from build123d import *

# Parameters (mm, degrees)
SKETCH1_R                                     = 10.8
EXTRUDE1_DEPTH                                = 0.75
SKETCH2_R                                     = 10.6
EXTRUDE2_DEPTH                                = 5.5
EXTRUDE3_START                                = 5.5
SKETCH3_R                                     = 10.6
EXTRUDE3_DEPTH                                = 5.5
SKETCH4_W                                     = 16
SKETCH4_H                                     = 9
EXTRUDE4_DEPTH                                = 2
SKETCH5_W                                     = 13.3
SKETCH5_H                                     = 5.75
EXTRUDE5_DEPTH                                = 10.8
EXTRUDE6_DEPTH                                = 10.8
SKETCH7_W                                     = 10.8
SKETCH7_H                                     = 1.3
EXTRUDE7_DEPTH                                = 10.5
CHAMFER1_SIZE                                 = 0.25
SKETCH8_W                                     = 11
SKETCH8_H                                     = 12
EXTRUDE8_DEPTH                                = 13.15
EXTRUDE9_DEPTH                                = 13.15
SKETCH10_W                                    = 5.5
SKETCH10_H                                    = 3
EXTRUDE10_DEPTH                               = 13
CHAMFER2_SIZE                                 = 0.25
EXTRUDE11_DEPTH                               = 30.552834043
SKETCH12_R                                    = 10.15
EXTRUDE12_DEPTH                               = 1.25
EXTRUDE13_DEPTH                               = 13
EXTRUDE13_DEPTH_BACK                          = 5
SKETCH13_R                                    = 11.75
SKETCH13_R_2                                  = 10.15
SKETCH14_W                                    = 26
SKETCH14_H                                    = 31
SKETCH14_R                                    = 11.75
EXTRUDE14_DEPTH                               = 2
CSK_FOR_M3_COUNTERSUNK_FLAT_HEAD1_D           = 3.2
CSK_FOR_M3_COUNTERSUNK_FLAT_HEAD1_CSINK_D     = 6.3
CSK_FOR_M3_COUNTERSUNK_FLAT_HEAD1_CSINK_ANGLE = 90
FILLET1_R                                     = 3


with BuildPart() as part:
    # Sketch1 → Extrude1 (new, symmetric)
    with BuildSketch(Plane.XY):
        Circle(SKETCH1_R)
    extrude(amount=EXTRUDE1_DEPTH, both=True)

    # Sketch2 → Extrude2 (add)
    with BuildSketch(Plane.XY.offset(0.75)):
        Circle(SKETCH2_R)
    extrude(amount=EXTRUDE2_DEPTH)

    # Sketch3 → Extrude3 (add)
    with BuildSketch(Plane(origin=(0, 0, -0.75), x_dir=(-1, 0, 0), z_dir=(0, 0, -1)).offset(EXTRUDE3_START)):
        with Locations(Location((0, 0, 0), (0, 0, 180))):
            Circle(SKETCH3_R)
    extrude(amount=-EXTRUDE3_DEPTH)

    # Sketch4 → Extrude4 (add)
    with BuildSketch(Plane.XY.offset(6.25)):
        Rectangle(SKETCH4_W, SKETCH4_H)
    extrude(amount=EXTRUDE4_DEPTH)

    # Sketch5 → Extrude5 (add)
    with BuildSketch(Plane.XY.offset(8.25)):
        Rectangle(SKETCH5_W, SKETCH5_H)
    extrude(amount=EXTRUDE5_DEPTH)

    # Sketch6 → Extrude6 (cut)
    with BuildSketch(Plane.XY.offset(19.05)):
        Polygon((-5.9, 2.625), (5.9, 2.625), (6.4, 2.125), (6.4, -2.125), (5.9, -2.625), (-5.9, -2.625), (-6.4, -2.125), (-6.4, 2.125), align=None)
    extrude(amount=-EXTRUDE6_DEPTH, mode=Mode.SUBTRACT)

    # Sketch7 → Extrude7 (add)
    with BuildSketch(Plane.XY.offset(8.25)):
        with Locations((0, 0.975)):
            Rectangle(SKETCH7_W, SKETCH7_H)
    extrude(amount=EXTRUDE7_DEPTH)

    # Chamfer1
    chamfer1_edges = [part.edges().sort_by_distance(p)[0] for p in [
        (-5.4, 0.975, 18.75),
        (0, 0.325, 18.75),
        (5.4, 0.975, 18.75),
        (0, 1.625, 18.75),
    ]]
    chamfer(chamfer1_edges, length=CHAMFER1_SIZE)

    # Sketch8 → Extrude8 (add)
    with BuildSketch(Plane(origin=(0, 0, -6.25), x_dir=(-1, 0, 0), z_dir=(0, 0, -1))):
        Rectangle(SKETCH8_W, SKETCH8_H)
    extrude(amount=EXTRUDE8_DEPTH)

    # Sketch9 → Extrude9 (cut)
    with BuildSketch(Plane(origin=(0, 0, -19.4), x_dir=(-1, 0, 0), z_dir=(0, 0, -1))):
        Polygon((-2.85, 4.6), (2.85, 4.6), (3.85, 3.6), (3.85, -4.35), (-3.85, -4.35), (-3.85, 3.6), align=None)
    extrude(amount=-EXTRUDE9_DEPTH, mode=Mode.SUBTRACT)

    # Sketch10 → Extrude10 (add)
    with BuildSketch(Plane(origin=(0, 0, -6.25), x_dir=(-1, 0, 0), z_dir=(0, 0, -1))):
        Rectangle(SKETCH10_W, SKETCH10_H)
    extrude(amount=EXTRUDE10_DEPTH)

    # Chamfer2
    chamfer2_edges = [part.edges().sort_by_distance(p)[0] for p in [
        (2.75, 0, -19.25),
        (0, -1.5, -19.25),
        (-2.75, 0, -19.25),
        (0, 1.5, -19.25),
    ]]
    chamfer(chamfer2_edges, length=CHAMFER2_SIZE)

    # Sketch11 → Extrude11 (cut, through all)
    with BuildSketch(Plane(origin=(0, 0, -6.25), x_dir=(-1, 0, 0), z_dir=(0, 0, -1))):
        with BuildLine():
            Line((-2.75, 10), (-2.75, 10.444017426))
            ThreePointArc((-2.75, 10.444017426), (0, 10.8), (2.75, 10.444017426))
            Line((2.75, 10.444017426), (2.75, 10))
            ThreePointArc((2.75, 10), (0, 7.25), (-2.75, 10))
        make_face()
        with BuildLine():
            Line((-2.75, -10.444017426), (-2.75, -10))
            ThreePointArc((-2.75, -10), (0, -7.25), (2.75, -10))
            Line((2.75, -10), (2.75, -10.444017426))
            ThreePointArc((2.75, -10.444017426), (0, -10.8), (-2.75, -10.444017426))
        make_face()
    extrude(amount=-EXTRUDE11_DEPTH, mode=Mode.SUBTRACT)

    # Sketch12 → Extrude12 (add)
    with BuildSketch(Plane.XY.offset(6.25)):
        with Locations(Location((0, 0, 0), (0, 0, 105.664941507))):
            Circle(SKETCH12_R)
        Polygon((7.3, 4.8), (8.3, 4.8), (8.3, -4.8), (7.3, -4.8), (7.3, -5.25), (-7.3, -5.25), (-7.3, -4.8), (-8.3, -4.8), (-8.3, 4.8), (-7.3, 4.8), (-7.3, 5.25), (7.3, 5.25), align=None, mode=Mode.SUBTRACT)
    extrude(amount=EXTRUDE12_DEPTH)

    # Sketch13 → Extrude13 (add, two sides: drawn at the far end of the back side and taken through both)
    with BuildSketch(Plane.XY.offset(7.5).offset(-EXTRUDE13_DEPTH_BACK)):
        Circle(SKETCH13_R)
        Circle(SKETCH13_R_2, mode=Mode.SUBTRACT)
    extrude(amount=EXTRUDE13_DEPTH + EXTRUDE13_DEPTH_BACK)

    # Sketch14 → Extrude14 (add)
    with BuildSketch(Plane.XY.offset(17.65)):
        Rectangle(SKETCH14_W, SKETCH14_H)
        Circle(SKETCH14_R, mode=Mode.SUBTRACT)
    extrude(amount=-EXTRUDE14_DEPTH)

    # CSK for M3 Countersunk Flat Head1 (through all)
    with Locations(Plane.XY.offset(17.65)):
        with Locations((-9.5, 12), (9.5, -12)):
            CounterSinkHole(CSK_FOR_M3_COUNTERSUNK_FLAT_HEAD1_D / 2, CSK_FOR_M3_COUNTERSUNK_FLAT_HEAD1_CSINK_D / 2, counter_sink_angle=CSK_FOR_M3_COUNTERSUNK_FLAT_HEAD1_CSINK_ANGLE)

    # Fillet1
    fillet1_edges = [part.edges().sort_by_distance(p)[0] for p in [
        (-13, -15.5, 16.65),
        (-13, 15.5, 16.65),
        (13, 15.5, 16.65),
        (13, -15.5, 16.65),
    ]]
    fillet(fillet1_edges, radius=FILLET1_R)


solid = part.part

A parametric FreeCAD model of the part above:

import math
import FreeCAD as App
import Part
import Sketcher
from FreeCAD import Vector
Q = App.Units.Quantity


def edges_at(feature, points):
    """Names of the edges that pass closest to the given points."""
    edges = feature.Shape.Edges
    near = lambda p: min(range(len(edges)), key=lambda i: edges[i].distToShape(Part.Vertex(*p))[0])
    return sorted({f"Edge{near(p) + 1}" for p in points})


def add_polygon(sketch, points):
    """Adds a closed chain of lines whose ends are joined by coincident constraints."""
    first, n = sketch.GeometryCount, len(points)
    for a, b in zip(points, points[1:] + points[:1]):
        sketch.addGeometry(Part.LineSegment(App.Vector(*a, 0), App.Vector(*b, 0)), False)
    for i in range(n):
        sketch.addConstraint(Sketcher.Constraint("Coincident", first + i, 2, first + (i + 1) % n, 1))

doc = App.newDocument("Part")
body = doc.addObject("PartDesign::Body", "Body")

# Sketch on XY plane
sketch1 = body.newObject("Sketcher::SketchObject", "Sketch")
sketch1.AttachmentSupport = (doc.getObject("XY_Plane"), [""])
sketch1.MapMode = "FlatFace"
sketch1.addGeometry(Part.Circle(Vector(0, 0, 0), Vector(0, 0, 1), 11), False)
sketch1.addConstraint([
    Sketcher.Constraint("Coincident", 0, 3, -1, 1),
    Sketcher.Constraint("Diameter", 0, Q("21.6 mm")),
])
pad1 = body.newObject("PartDesign::Pad", "Pad")
pad1.Profile = sketch1
pad1.Length = 1.5
pad1.Midplane = True

# Sketch on XY plane
sketch2 = body.newObject("Sketcher::SketchObject", "Sketch001")
sketch2.AttachmentSupport = (doc.getObject("XY_Plane"), [""])
sketch2.MapMode = "FlatFace"
sketch2.AttachmentOffset = App.Placement(Vector(0, 0, 0.75), App.Rotation())
sketch2.addGeometry(Part.Circle(Vector(0, 0, 0), Vector(0, 0, 1), 11), False)
sketch2.addConstraint([
    Sketcher.Constraint("Coincident", 0, 3, -1, 1),
    Sketcher.Constraint("Diameter", 0, Q("21.2 mm")),
])
pad2 = body.newObject("PartDesign::Pad", "Pad001")
pad2.Profile = sketch2
pad2.Length = 5.5

# Sketch on XY plane
sketch3 = body.newObject("Sketcher::SketchObject", "Sketch002")
sketch3.AttachmentSupport = (doc.getObject("XY_Plane"), [""])
sketch3.MapMode = "FlatFace"
sketch3.AttachmentOffset = App.Placement(Vector(0, 0, -6.25), App.Rotation())
sketch3.addGeometry(Part.Circle(Vector(0, 0, 0), Vector(0, 0, 1), 11), False)
sketch3.addConstraint([
    Sketcher.Constraint("Coincident", 0, 3, -1, 1),
    Sketcher.Constraint("Diameter", 0, Q("21.2 mm")),
])
pad3 = body.newObject("PartDesign::Pad", "Pad002")
pad3.Profile = sketch3
pad3.Length = 5.5

# Sketch on XY plane
sketch4 = body.newObject("Sketcher::SketchObject", "Sketch003")
sketch4.AttachmentSupport = (doc.getObject("XY_Plane"), [""])
sketch4.MapMode = "FlatFace"
sketch4.AttachmentOffset = App.Placement(Vector(0, 0, 6.25), App.Rotation())
add_polygon(sketch4, [(-8, 4), (-8, -4), (8, -4), (8, 4)])  # lines 0-3
sketch4.addConstraint([
    Sketcher.Constraint("Vertical", 0),
    Sketcher.Constraint("Horizontal", 1),
    Sketcher.Constraint("Vertical", 2),
    Sketcher.Constraint("Horizontal", 3),
    Sketcher.Constraint("Symmetric", 0, 2, 2, 2, -1, 1),
    Sketcher.Constraint("DistanceX", 1, 1, 1, 2, Q("16 mm")),
    Sketcher.Constraint("DistanceY", 0, 2, 0, 1, Q("9 mm")),
])
pad4 = body.newObject("PartDesign::Pad", "Pad003")
pad4.Profile = sketch4
pad4.Length = 2

# Sketch on XY plane
sketch5 = body.newObject("Sketcher::SketchObject", "Sketch004")
sketch5.AttachmentSupport = (doc.getObject("XY_Plane"), [""])
sketch5.MapMode = "FlatFace"
sketch5.AttachmentOffset = App.Placement(Vector(0, 0, 8.25), App.Rotation())
add_polygon(sketch5, [(-7, 3), (-7, -3), (7, -3), (7, 3)])  # lines 0-3
sketch5.addConstraint([
    Sketcher.Constraint("Vertical", 0),
    Sketcher.Constraint("Horizontal", 1),
    Sketcher.Constraint("Vertical", 2),
    Sketcher.Constraint("Horizontal", 3),
    Sketcher.Constraint("Symmetric", 0, 2, 2, 2, -1, 1),
    Sketcher.Constraint("DistanceX", 1, 1, 1, 2, Q("13.3 mm")),
    Sketcher.Constraint("DistanceY", 0, 2, 0, 1, Q("5.75 mm")),
])
pad5 = body.newObject("PartDesign::Pad", "Pad004")
pad5.Profile = sketch5
pad5.Length = 10.8

# Sketch on XY plane
sketch6 = body.newObject("Sketcher::SketchObject", "Sketch005")
sketch6.AttachmentSupport = (doc.getObject("XY_Plane"), [""])
sketch6.MapMode = "FlatFace"
sketch6.AttachmentOffset = App.Placement(Vector(0, 0, 19.05), App.Rotation())
add_polygon(sketch6, [(5.9, 2.6), (-5.9, 2.6), (-6.4, 2.1), (-6.4, -2.1), (-5.9, -2.6), (5.9, -2.6), (6.4, -2.1), (6.4, 2.1)])  # lines 0-7
sketch6.addConstraint([
    Sketcher.Constraint("Horizontal", 0),
    Sketcher.Constraint("Vertical", 2),
    Sketcher.Constraint("Horizontal", 4),
    Sketcher.Constraint("Vertical", 6),
    Sketcher.Constraint("Symmetric", 0, 2, 4, 2, -1, 1),
    Sketcher.Constraint("Symmetric", 1, 2, 5, 2, -1, 1),
    Sketcher.Constraint("Perpendicular", 1, 3),
    Sketcher.Constraint("Perpendicular", 5, 7),
    Sketcher.Constraint("Horizontal", 2, 2, 5, 2),
    Sketcher.Constraint("Horizontal", 1, 2, 6, 2),
    Sketcher.Constraint("Vertical", 0, 2, 3, 2),
    Sketcher.Constraint("DistanceX", 0, 2, 0, 1, Q("11.8 mm")),
    Sketcher.Constraint("DistanceY", 2, 2, 2, 1, Q("4.25 mm")),
    Sketcher.Constraint("DistanceX", 1, 2, -1, 1, Q("6.4 mm")),
])
pocket1 = body.newObject("PartDesign::Pocket", "Pocket")
pocket1.Profile = sketch6
pocket1.Length = 10.8

# Sketch on XY plane
sketch7 = body.newObject("Sketcher::SketchObject", "Sketch006")
sketch7.AttachmentSupport = (doc.getObject("XY_Plane"), [""])
sketch7.MapMode = "FlatFace"
sketch7.AttachmentOffset = App.Placement(Vector(0, 0, 8.25), App.Rotation())
add_polygon(sketch7, [(-5.4, 1.6), (-5.4, 0.3), (5.4, 0.3), (5.4, 1.6)])  # lines 0-3
sketch7.addConstraint([
    Sketcher.Constraint("Vertical", 0),
    Sketcher.Constraint("Horizontal", 1),
    Sketcher.Constraint("Vertical", 2),
    Sketcher.Constraint("Horizontal", 3),
    Sketcher.Constraint("DistanceX", 1, 1, 1, 2, Q("10.8 mm")),
    Sketcher.Constraint("DistanceY", 0, 2, 0, 1, Q("1.3 mm")),
    Sketcher.Constraint("DistanceX", 0, 2, -1, 1, Q("5.4 mm")),
    Sketcher.Constraint("DistanceY", -1, 1, 0, 2, Q("0.325 mm")),
])
pad6 = body.newObject("PartDesign::Pad", "Pad005")
pad6.Profile = sketch7
pad6.Length = 10.5
doc.recompute()

chamfer = body.newObject("PartDesign::Chamfer", "Chamfer")
chamfer.Base = (pad6, edges_at(pad6, [
    (-5.4, 0.975, 18.75),
    (0, 0.325, 18.75),
    (5.4, 0.975, 18.75),
    (0, 1.625, 18.75),
]))
chamfer.Size = 0.25

# Sketch on XY plane
sketch8 = body.newObject("Sketcher::SketchObject", "Sketch007")
sketch8.AttachmentSupport = (doc.getObject("XY_Plane"), [""])
sketch8.MapMode = "FlatFace"
sketch8.AttachmentOffset = App.Placement(Vector(0, 0, -6.25), App.Rotation())
add_polygon(sketch8, [(6, 6), (6, -6), (-6, -6), (-6, 6)])  # lines 0-3
sketch8.addConstraint([
    Sketcher.Constraint("Vertical", 0),
    Sketcher.Constraint("Horizontal", 1),
    Sketcher.Constraint("Vertical", 2),
    Sketcher.Constraint("Horizontal", 3),
    Sketcher.Constraint("Symmetric", 0, 2, 2, 2, -1, 1),
    Sketcher.Constraint("DistanceX", 1, 2, 1, 1, Q("11 mm")),
    Sketcher.Constraint("DistanceY", 0, 2, 0, 1, Q("12 mm")),
])
pad7 = body.newObject("PartDesign::Pad", "Pad006")
pad7.Profile = sketch8
pad7.Length = 13.15
pad7.Reversed = True

# Sketch on XY plane
sketch9 = body.newObject("Sketcher::SketchObject", "Sketch008")
sketch9.AttachmentSupport = (doc.getObject("XY_Plane"), [""])
sketch9.MapMode = "FlatFace"
sketch9.AttachmentOffset = App.Placement(Vector(0, 0, -19.4), App.Rotation())
add_polygon(sketch9, [(-2.9, 4.6), (2.9, 4.6), (3.9, 3.6), (3.9, -4.3), (-3.9, -4.3), (-3.9, 3.6)])  # lines 0-5
sketch9.addConstraint([
    Sketcher.Constraint("Horizontal", 0),
    Sketcher.Constraint("Vertical", 2),
    Sketcher.Constraint("Horizontal", 3),
    Sketcher.Constraint("Vertical", 4),
    Sketcher.Constraint("Symmetric", 1, 2, 4, 2, -2),
    Sketcher.Constraint("Perpendicular", 1, 5),
    Sketcher.Constraint("Equal", 1, 5),
    Sketcher.Constraint("DistanceX", 0, 1, 0, 2, Q("5.7 mm")),
    Sketcher.Constraint("DistanceX", 3, 2, 3, 1, Q("7.7 mm")),
    Sketcher.Constraint("DistanceY", 2, 2, 2, 1, Q("7.95 mm")),
    Sketcher.Constraint("DistanceY", -1, 1, 0, 2, Q("4.6 mm")),
])
pocket2 = body.newObject("PartDesign::Pocket", "Pocket001")
pocket2.Profile = sketch9
pocket2.Length = 13.15
pocket2.Reversed = True

# Sketch on XY plane
sketch10 = body.newObject("Sketcher::SketchObject", "Sketch009")
sketch10.AttachmentSupport = (doc.getObject("XY_Plane"), [""])
sketch10.MapMode = "FlatFace"
sketch10.AttachmentOffset = App.Placement(Vector(0, 0, -6.25), App.Rotation())
add_polygon(sketch10, [(2.8, 1.5), (2.8, -1.5), (-2.8, -1.5), (-2.8, 1.5)])  # lines 0-3
sketch10.addConstraint([
    Sketcher.Constraint("Vertical", 0),
    Sketcher.Constraint("Horizontal", 1),
    Sketcher.Constraint("Vertical", 2),
    Sketcher.Constraint("Horizontal", 3),
    Sketcher.Constraint("Symmetric", 0, 2, 2, 2, -1, 1),
    Sketcher.Constraint("DistanceY", 0, 2, 0, 1, Q("3 mm")),
    Sketcher.Constraint("DistanceX", 1, 2, 1, 1, Q("5.5 mm")),
])
pad8 = body.newObject("PartDesign::Pad", "Pad007")
pad8.Profile = sketch10
pad8.Length = 13
pad8.Reversed = True
doc.recompute()

chamfer2 = body.newObject("PartDesign::Chamfer", "Chamfer001")
chamfer2.Base = (pad8, edges_at(pad8, [
    (2.75, 0, -19.25),
    (0, -1.5, -19.25),
    (-2.75, 0, -19.25),
    (0, 1.5, -19.25),
]))
chamfer2.Size = 0.25

# Sketch on XY plane
sketch11 = body.newObject("Sketcher::SketchObject", "Sketch010")
sketch11.AttachmentSupport = (doc.getObject("XY_Plane"), [""])
sketch11.MapMode = "FlatFace"
sketch11.AttachmentOffset = App.Placement(Vector(0, 0, -6.25), App.Rotation())
sketch11.addGeometry([
    Part.LineSegment(Vector(2.75, 10.44, 0), Vector(2.75, 10, 0)),  # 0
    Part.ArcOfCircle(Part.Circle(Vector(0, 10, 0), Vector(0, 0, 1), 2.75), math.radians(180), math.radians(360)),  # 1
    Part.LineSegment(Vector(-2.75, 10, 0), Vector(-2.75, 10.44, 0)),  # 2
    Part.ArcOfCircle(Part.Circle(Vector(0, 0, 0), Vector(0, 0, 1), 10.8), math.radians(75), math.radians(105)),  # 3
    Part.LineSegment(Vector(2.75, -10, 0), Vector(2.75, -10.44, 0)),  # 4
    Part.ArcOfCircle(Part.Circle(Vector(0, 0, 0), Vector(0, 0, 1), 10.8), math.radians(-105), math.radians(-75)),  # 5
    Part.LineSegment(Vector(-2.75, -10.44, 0), Vector(-2.75, -10, 0)),  # 6
    Part.ArcOfCircle(Part.Circle(Vector(0, -10, 0), Vector(0, 0, 1), 2.75), math.radians(0), math.radians(180)),  # 7
], False)
sketch11.addConstraint([
    Sketcher.Constraint("Tangent", 0, 2, 1, 2),
    Sketcher.Constraint("Tangent", 1, 1, 2, 1),
    Sketcher.Constraint("Coincident", 2, 2, 3, 2),
    Sketcher.Constraint("Coincident", 3, 1, 0, 1),
    Sketcher.Constraint("Coincident", 4, 2, 5, 2),
    Sketcher.Constraint("Coincident", 5, 1, 6, 1),
    Sketcher.Constraint("Tangent", 6, 2, 7, 2),
    Sketcher.Constraint("Tangent", 7, 1, 4, 1),
    Sketcher.Constraint("Vertical", 0),
    Sketcher.Constraint("Vertical", 2),
    Sketcher.Constraint("Vertical", 4),
    Sketcher.Constraint("Vertical", 6),
    Sketcher.Constraint("Coincident", 3, 3, -1, 1),
    Sketcher.Constraint("Coincident", 5, 3, -1, 1),
    Sketcher.Constraint("Equal", 3, 5),
    Sketcher.Constraint("Equal", 1, 7),
    Sketcher.Constraint("Symmetric", 1, 3, 7, 3, -1, 1),
    Sketcher.Constraint("PointOnObject", 1, 3, -2),
    Sketcher.Constraint("Radius", 3, Q("10.8 mm")),
    Sketcher.Constraint("Radius", 1, Q("2.75 mm")),
    Sketcher.Constraint("DistanceY", -1, 1, 1, 3, Q("10 mm")),
])
pocket3 = body.newObject("PartDesign::Pocket", "Pocket002")
pocket3.Profile = sketch11
pocket3.Type = "ThroughAll"
pocket3.Reversed = True

# Sketch on XY plane
sketch12 = body.newObject("Sketcher::SketchObject", "Sketch011")
sketch12.AttachmentSupport = (doc.getObject("XY_Plane"), [""])
sketch12.MapMode = "FlatFace"
sketch12.AttachmentOffset = App.Placement(Vector(0, 0, 6.25), App.Rotation())
sketch12.addGeometry(Part.Circle(Vector(0, 0, 0), Vector(0, 0, 1), 10.15), False)  # 0
add_polygon(sketch12, [(7.3, 5.25), (7.3, 4.8), (8.3, 4.8), (8.3, -4.8), (7.3, -4.8), (7.3, -5.25), (-7.3, -5.25), (-7.3, -4.8), (-8.3, -4.8), (-8.3, 4.8), (-7.3, 4.8), (-7.3, 5.25)])  # lines 1-12
sketch12.addConstraint([
    Sketcher.Constraint("Vertical", 1),
    Sketcher.Constraint("Horizontal", 2),
    Sketcher.Constraint("Vertical", 3),
    Sketcher.Constraint("Horizontal", 4),
    Sketcher.Constraint("Vertical", 5),
    Sketcher.Constraint("Horizontal", 6),
    Sketcher.Constraint("Vertical", 7),
    Sketcher.Constraint("Horizontal", 8),
    Sketcher.Constraint("Vertical", 9),
    Sketcher.Constraint("Horizontal", 10),
    Sketcher.Constraint("Vertical", 11),
    Sketcher.Constraint("Horizontal", 12),
    Sketcher.Constraint("Coincident", 0, 3, -1, 1),
    Sketcher.Constraint("Symmetric", 1, 2, 7, 2, -1, 1),
    Sketcher.Constraint("Symmetric", 3, 2, 9, 2, -1, 1),
    Sketcher.Constraint("Symmetric", 5, 2, 11, 2, -1, 1),
    Sketcher.Constraint("Symmetric", 4, 2, 7, 2, -2),
    Sketcher.Constraint("Diameter", 0, Q("20.3 mm")),
    Sketcher.Constraint("DistanceX", 2, 1, 2, 2, Q("1 mm")),
    Sketcher.Constraint("DistanceX", 6, 2, 6, 1, Q("14.6 mm")),
    Sketcher.Constraint("DistanceY", 3, 2, 3, 1, Q("9.6 mm")),
    Sketcher.Constraint("DistanceY", 1, 2, 1, 1, Q("0.45 mm")),
])
pad9 = body.newObject("PartDesign::Pad", "Pad008")
pad9.Profile = sketch12
pad9.Length = 1.25

# Sketch on XY plane
sketch13 = body.newObject("Sketcher::SketchObject", "Sketch012")
sketch13.AttachmentSupport = (doc.getObject("XY_Plane"), [""])
sketch13.MapMode = "FlatFace"
sketch13.AttachmentOffset = App.Placement(Vector(0, 0, 7.5), App.Rotation())
sketch13.addGeometry([
    Part.Circle(Vector(0, 0, 0), Vector(0, 0, 1), 12),
    Part.Circle(Vector(0, 0, 0), Vector(0, 0, 1), 10),
], False)
sketch13.addConstraint([
    Sketcher.Constraint("Coincident", 0, 3, -1, 1),
    Sketcher.Constraint("Coincident", 1, 3, -1, 1),
    Sketcher.Constraint("Diameter", 0, Q("23.5 mm")),
    Sketcher.Constraint("Diameter", 1, Q("20.3 mm")),
])
pad10 = body.newObject("PartDesign::Pad", "Pad009")
pad10.Profile = sketch13
pad10.Type = "TwoLengths"
pad10.Length = 13
pad10.Length2 = 5

# Sketch on XY plane
sketch14 = body.newObject("Sketcher::SketchObject", "Sketch013")
sketch14.AttachmentSupport = (doc.getObject("XY_Plane"), [""])
sketch14.MapMode = "FlatFace"
sketch14.AttachmentOffset = App.Placement(Vector(0, 0, 17.65), App.Rotation())
add_polygon(sketch14, [(-13, 16), (-13, -16), (13, -16), (13, 16)])  # lines 0-3
sketch14.addGeometry(Part.Circle(Vector(0, 0, 0), Vector(0, 0, 1), 12), False)  # 4
sketch14.addConstraint([
    Sketcher.Constraint("Vertical", 0),
    Sketcher.Constraint("Horizontal", 1),
    Sketcher.Constraint("Vertical", 2),
    Sketcher.Constraint("Horizontal", 3),
    Sketcher.Constraint("Coincident", 4, 3, -1, 1),
    Sketcher.Constraint("Symmetric", 0, 2, 2, 2, -1, 1),
    Sketcher.Constraint("Diameter", 4, Q("23.5 mm")),
    Sketcher.Constraint("DistanceX", 1, 1, 1, 2, Q("26 mm")),
    Sketcher.Constraint("DistanceY", 0, 2, 0, 1, Q("31 mm")),
])
pad11 = body.newObject("PartDesign::Pad", "Pad010")
pad11.Profile = sketch14
pad11.Length = 2
pad11.Reversed = True

# Sketch on XY plane
sketch15 = body.newObject("Sketcher::SketchObject", "Sketch014")
sketch15.AttachmentSupport = (doc.getObject("XY_Plane"), [""])
sketch15.MapMode = "FlatFace"
sketch15.AttachmentOffset = App.Placement(Vector(0, 0, 17.65), App.Rotation())
sketch15.addGeometry([
    Part.Circle(Vector(-9.5, 12, 0), Vector(0, 0, 1), 1.6),
    Part.Circle(Vector(9.5, -12, 0), Vector(0, 0, 1), 1.6),
], False)
sketch15.addConstraint([
    Sketcher.Constraint("Equal", 0, 1),
    Sketcher.Constraint("Symmetric", 0, 3, 1, 3, -1, 1),
    Sketcher.Constraint("Diameter", 0, Q("3.2 mm")),
    Sketcher.Constraint("DistanceY", -1, 1, 0, 3, Q("12 mm")),
    Sketcher.Constraint("DistanceX", 0, 3, 1, 3, Q("19 mm")),
])
doc.recompute()
hole = body.newObject("PartDesign::Hole", "Hole")
hole.Profile = sketch15
hole.ThreadType = "None"
hole.Diameter = 3.2
hole.DepthType = "ThroughAll"
hole.HoleCutType = "Countersink"
hole.HoleCutDiameter = 6.3
hole.HoleCutCountersinkAngle = 90
doc.recompute()

fillet = body.newObject("PartDesign::Fillet", "Fillet")
fillet.Base = (hole, edges_at(hole, [
    (-13, -15.5, 16.65),
    (-13, 15.5, 16.65),
    (13, 15.5, 16.65),
    (13, -15.5, 16.65),
]))
fillet.Radius = 3

doc.recompute()
